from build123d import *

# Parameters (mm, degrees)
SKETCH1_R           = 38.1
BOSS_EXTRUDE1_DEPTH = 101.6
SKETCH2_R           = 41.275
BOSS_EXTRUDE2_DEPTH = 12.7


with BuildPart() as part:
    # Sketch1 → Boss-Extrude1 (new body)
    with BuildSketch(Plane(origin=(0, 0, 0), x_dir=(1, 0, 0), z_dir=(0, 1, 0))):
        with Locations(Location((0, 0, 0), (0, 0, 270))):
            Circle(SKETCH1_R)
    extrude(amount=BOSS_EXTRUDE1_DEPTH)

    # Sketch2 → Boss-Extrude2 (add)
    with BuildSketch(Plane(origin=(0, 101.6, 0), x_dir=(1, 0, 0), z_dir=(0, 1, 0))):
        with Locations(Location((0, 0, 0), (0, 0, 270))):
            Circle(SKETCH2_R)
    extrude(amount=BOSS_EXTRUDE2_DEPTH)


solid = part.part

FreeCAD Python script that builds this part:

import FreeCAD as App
import Part
import Sketcher
Q = App.Units.Quantity

doc = App.newDocument("Part")
body = doc.addObject("PartDesign::Body", "Body")

# Sketch on XZ plane
sketch1 = body.newObject("Sketcher::SketchObject", "Sketch")
sketch1.AttachmentSupport = (doc.getObject("XZ_Plane"), [""])
sketch1.MapMode = "FlatFace"
sketch1.addGeometry(Part.Circle(App.Vector(0, 0, 0), App.Vector(0, 0, 1), 38), False)
sketch1.addConstraint(Sketcher.Constraint("Coincident", 0, 3, -1, 1))
sketch1.addConstraint(Sketcher.Constraint("Diameter", 0, Q("3 in")))
pad1 = body.newObject("PartDesign::Pad", "Pad")
pad1.Profile = sketch1
pad1.Length = Q("4 in")
pad1.Reversed = True

# Sketch on XZ plane
sketch2 = body.newObject("Sketcher::SketchObject", "Sketch001")
sketch2.AttachmentSupport = (doc.getObject("XZ_Plane"), [""])
sketch2.MapMode = "FlatFace"
sketch2.AttachmentOffset = App.Placement(App.Vector(0, 0, -4 * 25.4), App.Rotation())
sketch2.addGeometry(Part.Circle(App.Vector(0, 0, 0), App.Vector(0, 0, 1), 41), False)
sketch2.addConstraint(Sketcher.Constraint("Coincident", 0, 3, -1, 1))
sketch2.addConstraint(Sketcher.Constraint("Diameter", 0, Q("3.25 in")))
pad2 = body.newObject("PartDesign::Pad", "Pad001")
pad2.Profile = sketch2
pad2.Length = Q("0.5 in")
pad2.Reversed = True

doc.recompute()
